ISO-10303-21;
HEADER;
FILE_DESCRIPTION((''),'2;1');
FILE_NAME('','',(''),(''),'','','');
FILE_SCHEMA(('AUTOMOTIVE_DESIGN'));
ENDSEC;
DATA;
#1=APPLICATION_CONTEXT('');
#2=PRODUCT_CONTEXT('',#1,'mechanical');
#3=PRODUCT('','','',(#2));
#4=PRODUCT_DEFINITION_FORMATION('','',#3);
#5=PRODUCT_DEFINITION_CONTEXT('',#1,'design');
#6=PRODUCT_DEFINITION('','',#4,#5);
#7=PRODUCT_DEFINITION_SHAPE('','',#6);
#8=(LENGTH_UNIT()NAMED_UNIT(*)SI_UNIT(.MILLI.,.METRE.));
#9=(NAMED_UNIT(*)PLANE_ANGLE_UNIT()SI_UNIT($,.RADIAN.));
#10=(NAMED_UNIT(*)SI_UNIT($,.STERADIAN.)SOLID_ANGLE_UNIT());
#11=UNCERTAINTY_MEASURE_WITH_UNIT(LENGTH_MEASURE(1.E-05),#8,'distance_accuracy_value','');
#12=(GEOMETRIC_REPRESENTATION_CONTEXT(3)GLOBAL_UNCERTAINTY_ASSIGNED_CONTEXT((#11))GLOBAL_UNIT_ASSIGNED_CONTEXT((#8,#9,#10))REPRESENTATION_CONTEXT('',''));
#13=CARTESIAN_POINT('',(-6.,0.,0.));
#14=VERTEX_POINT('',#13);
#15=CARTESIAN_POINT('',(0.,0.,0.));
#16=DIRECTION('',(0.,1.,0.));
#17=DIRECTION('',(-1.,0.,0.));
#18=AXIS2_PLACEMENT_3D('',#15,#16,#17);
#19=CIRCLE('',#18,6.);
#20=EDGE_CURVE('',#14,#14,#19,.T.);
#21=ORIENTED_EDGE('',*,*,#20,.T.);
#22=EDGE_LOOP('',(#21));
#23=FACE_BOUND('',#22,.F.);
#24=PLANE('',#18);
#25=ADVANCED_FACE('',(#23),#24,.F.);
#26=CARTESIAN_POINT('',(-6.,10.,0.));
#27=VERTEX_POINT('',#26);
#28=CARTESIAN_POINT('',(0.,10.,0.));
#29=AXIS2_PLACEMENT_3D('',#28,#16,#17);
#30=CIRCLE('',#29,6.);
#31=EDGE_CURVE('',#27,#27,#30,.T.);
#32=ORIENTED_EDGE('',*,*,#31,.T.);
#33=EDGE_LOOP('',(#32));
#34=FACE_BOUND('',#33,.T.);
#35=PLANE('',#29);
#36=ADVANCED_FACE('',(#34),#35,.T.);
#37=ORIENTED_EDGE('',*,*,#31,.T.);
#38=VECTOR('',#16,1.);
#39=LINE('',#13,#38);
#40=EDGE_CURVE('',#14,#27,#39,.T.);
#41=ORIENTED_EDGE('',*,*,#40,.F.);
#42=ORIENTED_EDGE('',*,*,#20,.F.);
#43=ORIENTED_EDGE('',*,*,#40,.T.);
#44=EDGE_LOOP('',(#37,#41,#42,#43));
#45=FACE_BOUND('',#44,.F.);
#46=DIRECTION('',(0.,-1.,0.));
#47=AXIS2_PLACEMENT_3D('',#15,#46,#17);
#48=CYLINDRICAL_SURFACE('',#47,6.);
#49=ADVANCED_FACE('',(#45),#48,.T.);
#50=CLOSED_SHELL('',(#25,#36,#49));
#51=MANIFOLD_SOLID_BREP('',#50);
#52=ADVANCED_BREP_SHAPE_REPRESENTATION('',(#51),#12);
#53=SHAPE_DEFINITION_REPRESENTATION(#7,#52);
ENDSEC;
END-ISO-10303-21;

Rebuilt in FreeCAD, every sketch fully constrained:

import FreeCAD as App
import Part
import Sketcher
Q = App.Units.Quantity

doc = App.newDocument("Part")
body = doc.addObject("PartDesign::Body", "Body")

# Sketch on XZ plane
sketch1 = body.newObject("Sketcher::SketchObject", "Sketch")
sketch1.AttachmentSupport = (doc.getObject("XZ_Plane"), [""])
sketch1.MapMode = "FlatFace"
sketch1.addGeometry(Part.Circle(App.Vector(0, 0, 0), App.Vector(0, 0, 1), 6), False)
sketch1.addConstraint(Sketcher.Constraint("Coincident", 0, 3, -1, 1))
sketch1.addConstraint(Sketcher.Constraint("Diameter", 0, Q("12 mm")))
pad1 = body.newObject("PartDesign::Pad", "Pad")
pad1.Profile = sketch1
pad1.Length = 10
pad1.Reversed = True

doc.recompute()
